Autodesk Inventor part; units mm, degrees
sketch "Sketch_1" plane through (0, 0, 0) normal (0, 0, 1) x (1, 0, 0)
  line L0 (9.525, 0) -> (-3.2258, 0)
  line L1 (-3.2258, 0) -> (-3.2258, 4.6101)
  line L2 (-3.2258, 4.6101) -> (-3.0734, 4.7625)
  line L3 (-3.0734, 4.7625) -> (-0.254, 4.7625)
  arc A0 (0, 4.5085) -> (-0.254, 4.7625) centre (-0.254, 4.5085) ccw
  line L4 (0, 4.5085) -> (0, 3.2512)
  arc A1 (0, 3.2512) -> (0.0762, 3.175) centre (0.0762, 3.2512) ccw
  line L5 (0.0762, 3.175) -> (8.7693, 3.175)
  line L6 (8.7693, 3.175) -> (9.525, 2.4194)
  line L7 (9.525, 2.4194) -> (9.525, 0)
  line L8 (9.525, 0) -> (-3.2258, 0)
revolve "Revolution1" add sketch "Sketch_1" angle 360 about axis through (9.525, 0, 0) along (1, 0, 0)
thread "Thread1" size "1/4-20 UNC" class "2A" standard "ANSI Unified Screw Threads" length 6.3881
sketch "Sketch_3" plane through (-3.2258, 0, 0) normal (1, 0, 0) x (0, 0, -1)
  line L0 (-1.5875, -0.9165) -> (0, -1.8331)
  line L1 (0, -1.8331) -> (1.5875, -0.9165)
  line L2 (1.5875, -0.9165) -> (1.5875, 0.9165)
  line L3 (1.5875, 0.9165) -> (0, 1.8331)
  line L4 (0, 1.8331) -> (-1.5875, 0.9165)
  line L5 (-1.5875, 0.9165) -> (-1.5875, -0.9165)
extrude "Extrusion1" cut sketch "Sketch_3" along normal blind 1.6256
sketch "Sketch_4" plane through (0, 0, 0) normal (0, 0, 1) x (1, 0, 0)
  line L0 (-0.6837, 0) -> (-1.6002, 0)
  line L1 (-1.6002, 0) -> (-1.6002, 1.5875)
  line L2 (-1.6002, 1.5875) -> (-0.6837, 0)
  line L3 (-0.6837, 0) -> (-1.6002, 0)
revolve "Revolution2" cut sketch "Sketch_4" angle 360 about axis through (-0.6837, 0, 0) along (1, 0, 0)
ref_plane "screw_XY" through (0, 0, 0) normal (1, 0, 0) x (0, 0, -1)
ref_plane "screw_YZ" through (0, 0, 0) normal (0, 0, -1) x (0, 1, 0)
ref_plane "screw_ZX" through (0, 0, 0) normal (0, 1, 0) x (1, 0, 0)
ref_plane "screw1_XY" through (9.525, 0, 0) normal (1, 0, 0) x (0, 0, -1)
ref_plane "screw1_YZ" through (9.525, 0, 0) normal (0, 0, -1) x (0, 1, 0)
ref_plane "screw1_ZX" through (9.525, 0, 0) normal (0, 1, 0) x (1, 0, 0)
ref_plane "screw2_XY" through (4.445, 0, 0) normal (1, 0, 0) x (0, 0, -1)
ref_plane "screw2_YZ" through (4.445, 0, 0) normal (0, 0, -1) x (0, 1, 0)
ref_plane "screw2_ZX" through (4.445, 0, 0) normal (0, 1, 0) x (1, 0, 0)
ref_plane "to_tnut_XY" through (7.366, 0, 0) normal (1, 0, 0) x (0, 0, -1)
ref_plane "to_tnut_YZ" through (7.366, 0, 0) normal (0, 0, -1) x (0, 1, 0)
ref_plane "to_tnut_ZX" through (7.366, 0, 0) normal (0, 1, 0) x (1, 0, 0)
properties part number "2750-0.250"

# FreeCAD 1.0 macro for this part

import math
import FreeCAD as App
import Part
import Sketcher

V = App.Vector
Q = App.Units.Quantity


def add_polygon(sketch, points):
    """Adds a closed chain of lines whose ends are joined by coincident constraints."""
    first, n = sketch.GeometryCount, len(points)
    for a, b in zip(points, points[1:] + points[:1]):
        sketch.addGeometry(Part.LineSegment(App.Vector(*a, 0), App.Vector(*b, 0)), False)
    for i in range(n):
        sketch.addConstraint(Sketcher.Constraint("Coincident", first + i, 2, first + (i + 1) % n, 1))

doc = App.newDocument("Part")
params = doc.addObject("Spreadsheet::Sheet", "Params")
for row, (alias, value) in enumerate([
    ("sketch1_radius", "0.01 in"),
    ("sketch1_radius2", "0.003 in"),
    ("sketch1_width", "0.502 in"),
    ("sketch1_width2", "0.111 in"),
    ("revolution_angle", "360 deg"),
    ("pocket1_length", "0.064 in"),
    ("sketch3_height", "0.0625 in"),
    ("groove_angle", "360 deg"),
], start=1):
    params.set(f"A{row}", alias)
    params.set(f"B{row}", "=" + value)
    params.setAlias(f"B{row}", alias)

body = doc.addObject("PartDesign::Body", "Body")

sketch1 = body.newObject("Sketcher::SketchObject", "Sketch")
sketch1.AttachmentSupport = (doc.getObject("XY_Plane"), [""])
sketch1.MapMode = "FlatFace"
sketch1.addGeometry([
    Part.LineSegment(V(-3.23, 0, 0), V(9.53, 0, 0)),
    Part.LineSegment(V(9.53, 0, 0), V(9.53, 2.42, 0)),
    Part.LineSegment(V(9.53, 2.42, 0), V(8.77, 3.17, 0)),
    Part.LineSegment(V(8.77, 3.17, 0), V(0.08, 3.17, 0)),
    Part.ArcOfCircle(Part.Circle(V(0.08, 3.25, 0), V(0, 0, 1), 0.08), math.radians(180), math.radians(270)),
    Part.LineSegment(V(0, 3.25, 0), V(0, 4.51, 0)),
    Part.ArcOfCircle(Part.Circle(V(-0.25, 4.51, 0), V(0, 0, 1), 0.25), math.radians(0), math.radians(90)),
    Part.LineSegment(V(-0.25, 4.76, 0), V(-3.07, 4.76, 0)),
    Part.LineSegment(V(-3.07, 4.76, 0), V(-3.23, 4.61, 0)),
    Part.LineSegment(V(-3.23, 4.61, 0), V(-3.23, 0, 0)),
], False)
sketch1.addConstraint([
    Sketcher.Constraint("Coincident", 0, 2, 1, 1),
    Sketcher.Constraint("Coincident", 1, 2, 2, 1),
    Sketcher.Constraint("Coincident", 2, 2, 3, 1),
    Sketcher.Constraint("Tangent", 3, 2, 4, 2),
    Sketcher.Constraint("Tangent", 4, 1, 5, 1),
    Sketcher.Constraint("Tangent", 5, 2, 6, 1),
    Sketcher.Constraint("Tangent", 6, 2, 7, 1),
    Sketcher.Constraint("Coincident", 7, 2, 8, 1),
    Sketcher.Constraint("Coincident", 8, 2, 9, 1),
    Sketcher.Constraint("Coincident", 9, 2, 0, 1),
    Sketcher.Constraint("Horizontal", 0),
    Sketcher.Constraint("Vertical", 1),
    Sketcher.Constraint("Horizontal", 3),
    Sketcher.Constraint("Vertical", 5),
    Sketcher.Constraint("Horizontal", 7),
    Sketcher.Constraint("Vertical", 9),
    Sketcher.Constraint("PointOnObject", 0, 2, -1),
    Sketcher.Constraint("PointOnObject", 4, 1, -2),
    Sketcher.Constraint("Perpendicular", 2, 8),
    Sketcher.Constraint("Radius", 6, Q("0.01 in")),
    Sketcher.Constraint("Angle", 8, Q("-135 deg")),
    Sketcher.Constraint("Radius", 4, Q("0.003 in")),
    Sketcher.Constraint("DistanceX", 0, 1, 0, 2, Q("0.502 in")),
    Sketcher.Constraint("DistanceX", 7, 2, 7, 1, Q("0.111 in")),
    Sketcher.Constraint("DistanceX", 9, 2, 3, 2, Q("0.13 in")),
    Sketcher.Constraint("DistanceY", 5, 1, 5, 2, Q("0.0495 in")),
    Sketcher.Constraint("DistanceY", 9, 2, 9, 1, Q("0.1815 in")),
    Sketcher.Constraint("DistanceX", 3, 2, 3, 1, Q("8.693 mm")),
])
sketch1.setExpression("Constraints[19]", "Params.sketch1_radius")
sketch1.setExpression("Constraints[21]", "Params.sketch1_radius2")
sketch1.setExpression("Constraints[22]", "Params.sketch1_width")
sketch1.setExpression("Constraints[23]", "Params.sketch1_width2")
revolution = body.newObject("PartDesign::Revolution", "Revolution")
revolution.Profile = sketch1
revolution.ReferenceAxis = (sketch1, ["H_Axis"])
revolution.setExpression("Angle", "Params.revolution_angle")

sketch2 = body.newObject("Sketcher::SketchObject", "Sketch001")
sketch2.AttachmentSupport = (doc.getObject("YZ_Plane"), [""])
sketch2.MapMode = "FlatFace"
sketch2.AttachmentOffset = App.Placement(V(0, 0, -0.127 * 25.4), App.Rotation())
add_polygon(sketch2, [(0.9, 1.6), (-0.9, 1.6), (-1.8, 0), (-0.9, -1.6), (0.9, -1.6), (1.8, 0)])
sketch2.addConstraint([
    Sketcher.Constraint("Horizontal", 0),
    Sketcher.Constraint("Horizontal", 3),
    Sketcher.Constraint("Symmetric", 0, 2, 3, 2, -1, 1),
    Sketcher.Constraint("Symmetric", 1, 2, 4, 2, -1, 1),
    Sketcher.Constraint("PointOnObject", 1, 2, -1),
    Sketcher.Constraint("Parallel", 2, 5),
    Sketcher.Constraint("Vertical", 0, 2, 2, 2),
    Sketcher.Constraint("DistanceY", -1, 1, 0, 2, Q("0.0625 in")),
    Sketcher.Constraint("DistanceX", 0, 2, 0, 1, Q("1.833 mm")),
    Sketcher.Constraint("Distance", 1, Q("1.833 mm")),
])
pocket1 = body.newObject("PartDesign::Pocket", "Pocket")
pocket1.Profile = sketch2
pocket1.setExpression("Length", "Params.pocket1_length")
pocket1.Reversed = True

sketch3 = body.newObject("Sketcher::SketchObject", "Sketch002")
sketch3.AttachmentSupport = (doc.getObject("XY_Plane"), [""])
sketch3.MapMode = "FlatFace"
add_polygon(sketch3, [(-1.6, 0), (-0.7, 0), (-1.6, 1.6)])
sketch3.addConstraint([
    Sketcher.Constraint("Horizontal", 0),
    Sketcher.Constraint("Vertical", 2),
    Sketcher.Constraint("PointOnObject", 0, 2, -1),
    Sketcher.Constraint("Angle", 1, Q("119.9988 deg")),
    Sketcher.Constraint("DistanceY", 2, 2, 2, 1, Q("0.0625 in")),
    Sketcher.Constraint("DistanceX", 1, 2, -1, 1, Q("0.063 in")),
])
sketch3.setExpression("Constraints[7]", "Params.sketch3_height")
groove = body.newObject("PartDesign::Groove", "Groove")
groove.Profile = sketch3
groove.ReferenceAxis = (sketch3, ["H_Axis"])
groove.setExpression("Angle", "Params.groove_angle")

doc.recompute()
